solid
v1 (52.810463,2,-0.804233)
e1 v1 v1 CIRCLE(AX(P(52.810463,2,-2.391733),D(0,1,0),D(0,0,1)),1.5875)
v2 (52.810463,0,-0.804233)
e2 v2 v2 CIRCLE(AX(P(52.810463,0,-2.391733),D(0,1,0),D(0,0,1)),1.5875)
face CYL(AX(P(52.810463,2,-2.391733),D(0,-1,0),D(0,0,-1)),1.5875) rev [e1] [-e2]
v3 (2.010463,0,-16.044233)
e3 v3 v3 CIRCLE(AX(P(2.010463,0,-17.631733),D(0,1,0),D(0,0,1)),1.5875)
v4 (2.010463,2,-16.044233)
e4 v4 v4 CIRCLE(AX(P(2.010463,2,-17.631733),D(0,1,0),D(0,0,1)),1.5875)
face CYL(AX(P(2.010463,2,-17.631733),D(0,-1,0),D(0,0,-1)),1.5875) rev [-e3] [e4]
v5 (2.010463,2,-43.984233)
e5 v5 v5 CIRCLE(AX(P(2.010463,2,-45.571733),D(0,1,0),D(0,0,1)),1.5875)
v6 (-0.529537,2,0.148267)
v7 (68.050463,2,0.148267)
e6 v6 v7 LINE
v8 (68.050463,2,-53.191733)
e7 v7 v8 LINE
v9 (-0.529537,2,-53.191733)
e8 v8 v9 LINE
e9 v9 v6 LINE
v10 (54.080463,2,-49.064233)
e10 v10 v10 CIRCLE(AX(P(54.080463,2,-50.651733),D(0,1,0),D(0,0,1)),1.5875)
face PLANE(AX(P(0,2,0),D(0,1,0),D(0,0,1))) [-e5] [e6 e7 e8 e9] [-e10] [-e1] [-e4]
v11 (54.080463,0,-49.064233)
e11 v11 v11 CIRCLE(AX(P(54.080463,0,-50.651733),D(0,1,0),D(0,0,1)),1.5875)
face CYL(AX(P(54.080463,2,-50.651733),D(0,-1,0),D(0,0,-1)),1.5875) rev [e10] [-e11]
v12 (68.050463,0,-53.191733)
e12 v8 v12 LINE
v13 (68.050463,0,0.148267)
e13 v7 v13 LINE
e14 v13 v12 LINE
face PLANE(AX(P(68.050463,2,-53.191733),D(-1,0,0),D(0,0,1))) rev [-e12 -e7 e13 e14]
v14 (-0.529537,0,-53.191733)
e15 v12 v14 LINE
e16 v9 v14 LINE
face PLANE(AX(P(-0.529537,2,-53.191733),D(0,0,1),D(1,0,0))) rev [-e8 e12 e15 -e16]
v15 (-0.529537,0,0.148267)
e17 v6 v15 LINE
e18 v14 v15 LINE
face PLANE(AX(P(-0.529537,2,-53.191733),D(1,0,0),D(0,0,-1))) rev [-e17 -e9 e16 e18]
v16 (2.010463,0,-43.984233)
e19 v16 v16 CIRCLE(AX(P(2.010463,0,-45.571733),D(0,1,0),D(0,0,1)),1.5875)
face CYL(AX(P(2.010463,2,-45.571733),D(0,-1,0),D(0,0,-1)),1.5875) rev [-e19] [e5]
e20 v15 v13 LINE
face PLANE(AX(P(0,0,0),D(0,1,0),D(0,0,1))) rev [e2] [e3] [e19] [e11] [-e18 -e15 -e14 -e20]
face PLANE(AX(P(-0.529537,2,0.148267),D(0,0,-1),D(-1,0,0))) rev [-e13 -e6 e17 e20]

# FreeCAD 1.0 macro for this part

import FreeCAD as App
import Part
import Sketcher
Q = App.Units.Quantity

doc = App.newDocument("Part")
body = doc.addObject("PartDesign::Body", "Body")

sketch1 = doc.addObject("Sketcher::SketchObject", "Sketch")
body.addObject(sketch1)
sketch1.AttachmentSupport = (doc.XZ_Plane, [""])
sketch1.MapMode = "FlatFace"
sketch1.addGeometry([
    Part.LineSegment(App.Vector(-0.5, -53.2, 0), App.Vector(-0.5, 0.1, 0)),
    Part.LineSegment(App.Vector(-0.5, 0.1, 0), App.Vector(68.1, 0.1, 0)),
    Part.LineSegment(App.Vector(68.1, 0.1, 0), App.Vector(68.1, -53.2, 0)),
    Part.LineSegment(App.Vector(68.1, -53.2, 0), App.Vector(-0.5, -53.2, 0)),
    Part.Circle(App.Vector(2, -17.6, 0), App.Vector(0, 0, 1), 1.6),
    Part.Circle(App.Vector(52.8, -2.4, 0), App.Vector(0, 0, 1), 1.6),
    Part.Circle(App.Vector(2, -45.6, 0), App.Vector(0, 0, 1), 1.6),
    Part.Circle(App.Vector(54.1, -50.7, 0), App.Vector(0, 0, 1), 1.6),
], False)
sketch1.addConstraint([
    Sketcher.Constraint("Coincident", 0, 2, 1, 1),
    Sketcher.Constraint("Coincident", 1, 2, 2, 1),
    Sketcher.Constraint("Coincident", 2, 2, 3, 1),
    Sketcher.Constraint("Coincident", 3, 2, 0, 1),
    Sketcher.Constraint("Vertical", 0),
    Sketcher.Constraint("Horizontal", 1),
    Sketcher.Constraint("Vertical", 2),
    Sketcher.Constraint("Horizontal", 3),
    Sketcher.Constraint("Equal", 4, 5),
    Sketcher.Constraint("Equal", 5, 6),
    Sketcher.Constraint("Equal", 6, 7),
    Sketcher.Constraint("Vertical", 4, 3, 6, 3),
    Sketcher.Constraint("Diameter", 4, Q("0.125 in")),
    Sketcher.Constraint("DistanceX", 1, 1, 1, 2, Q("2.7 in")),
    Sketcher.Constraint("DistanceY", 0, 1, 0, 2, Q("2.1 in")),
    Sketcher.Constraint("DistanceX", 4, 3, 5, 3, Q("2 in")),
    Sketcher.Constraint("DistanceY", 7, 3, 0, 2, Q("2 in")),
    Sketcher.Constraint("DistanceY", 2, 2, 5, 3, Q("2 in")),
    Sketcher.Constraint("DistanceY", 4, 3, 5, 3, Q("0.6 in")),
    Sketcher.Constraint("DistanceY", 6, 3, 4, 3, Q("1.1 in")),
    Sketcher.Constraint("DistanceX", 0, 2, 4, 3, Q("0.1 in")),
    Sketcher.Constraint("DistanceX", 5, 3, 7, 3, Q("0.05 in")),
    Sketcher.Constraint("DistanceX", -1, 1, 4, 3, Q("2.010463 mm")),
    Sketcher.Constraint("DistanceY", 4, 3, -1, 1, Q("17.631733 mm")),
])
pad1 = doc.addObject("PartDesign::Pad", "Pad")
body.addObject(pad1)
pad1.Profile = sketch1
pad1.Length = 2
pad1.Reversed = True

doc.recompute()
